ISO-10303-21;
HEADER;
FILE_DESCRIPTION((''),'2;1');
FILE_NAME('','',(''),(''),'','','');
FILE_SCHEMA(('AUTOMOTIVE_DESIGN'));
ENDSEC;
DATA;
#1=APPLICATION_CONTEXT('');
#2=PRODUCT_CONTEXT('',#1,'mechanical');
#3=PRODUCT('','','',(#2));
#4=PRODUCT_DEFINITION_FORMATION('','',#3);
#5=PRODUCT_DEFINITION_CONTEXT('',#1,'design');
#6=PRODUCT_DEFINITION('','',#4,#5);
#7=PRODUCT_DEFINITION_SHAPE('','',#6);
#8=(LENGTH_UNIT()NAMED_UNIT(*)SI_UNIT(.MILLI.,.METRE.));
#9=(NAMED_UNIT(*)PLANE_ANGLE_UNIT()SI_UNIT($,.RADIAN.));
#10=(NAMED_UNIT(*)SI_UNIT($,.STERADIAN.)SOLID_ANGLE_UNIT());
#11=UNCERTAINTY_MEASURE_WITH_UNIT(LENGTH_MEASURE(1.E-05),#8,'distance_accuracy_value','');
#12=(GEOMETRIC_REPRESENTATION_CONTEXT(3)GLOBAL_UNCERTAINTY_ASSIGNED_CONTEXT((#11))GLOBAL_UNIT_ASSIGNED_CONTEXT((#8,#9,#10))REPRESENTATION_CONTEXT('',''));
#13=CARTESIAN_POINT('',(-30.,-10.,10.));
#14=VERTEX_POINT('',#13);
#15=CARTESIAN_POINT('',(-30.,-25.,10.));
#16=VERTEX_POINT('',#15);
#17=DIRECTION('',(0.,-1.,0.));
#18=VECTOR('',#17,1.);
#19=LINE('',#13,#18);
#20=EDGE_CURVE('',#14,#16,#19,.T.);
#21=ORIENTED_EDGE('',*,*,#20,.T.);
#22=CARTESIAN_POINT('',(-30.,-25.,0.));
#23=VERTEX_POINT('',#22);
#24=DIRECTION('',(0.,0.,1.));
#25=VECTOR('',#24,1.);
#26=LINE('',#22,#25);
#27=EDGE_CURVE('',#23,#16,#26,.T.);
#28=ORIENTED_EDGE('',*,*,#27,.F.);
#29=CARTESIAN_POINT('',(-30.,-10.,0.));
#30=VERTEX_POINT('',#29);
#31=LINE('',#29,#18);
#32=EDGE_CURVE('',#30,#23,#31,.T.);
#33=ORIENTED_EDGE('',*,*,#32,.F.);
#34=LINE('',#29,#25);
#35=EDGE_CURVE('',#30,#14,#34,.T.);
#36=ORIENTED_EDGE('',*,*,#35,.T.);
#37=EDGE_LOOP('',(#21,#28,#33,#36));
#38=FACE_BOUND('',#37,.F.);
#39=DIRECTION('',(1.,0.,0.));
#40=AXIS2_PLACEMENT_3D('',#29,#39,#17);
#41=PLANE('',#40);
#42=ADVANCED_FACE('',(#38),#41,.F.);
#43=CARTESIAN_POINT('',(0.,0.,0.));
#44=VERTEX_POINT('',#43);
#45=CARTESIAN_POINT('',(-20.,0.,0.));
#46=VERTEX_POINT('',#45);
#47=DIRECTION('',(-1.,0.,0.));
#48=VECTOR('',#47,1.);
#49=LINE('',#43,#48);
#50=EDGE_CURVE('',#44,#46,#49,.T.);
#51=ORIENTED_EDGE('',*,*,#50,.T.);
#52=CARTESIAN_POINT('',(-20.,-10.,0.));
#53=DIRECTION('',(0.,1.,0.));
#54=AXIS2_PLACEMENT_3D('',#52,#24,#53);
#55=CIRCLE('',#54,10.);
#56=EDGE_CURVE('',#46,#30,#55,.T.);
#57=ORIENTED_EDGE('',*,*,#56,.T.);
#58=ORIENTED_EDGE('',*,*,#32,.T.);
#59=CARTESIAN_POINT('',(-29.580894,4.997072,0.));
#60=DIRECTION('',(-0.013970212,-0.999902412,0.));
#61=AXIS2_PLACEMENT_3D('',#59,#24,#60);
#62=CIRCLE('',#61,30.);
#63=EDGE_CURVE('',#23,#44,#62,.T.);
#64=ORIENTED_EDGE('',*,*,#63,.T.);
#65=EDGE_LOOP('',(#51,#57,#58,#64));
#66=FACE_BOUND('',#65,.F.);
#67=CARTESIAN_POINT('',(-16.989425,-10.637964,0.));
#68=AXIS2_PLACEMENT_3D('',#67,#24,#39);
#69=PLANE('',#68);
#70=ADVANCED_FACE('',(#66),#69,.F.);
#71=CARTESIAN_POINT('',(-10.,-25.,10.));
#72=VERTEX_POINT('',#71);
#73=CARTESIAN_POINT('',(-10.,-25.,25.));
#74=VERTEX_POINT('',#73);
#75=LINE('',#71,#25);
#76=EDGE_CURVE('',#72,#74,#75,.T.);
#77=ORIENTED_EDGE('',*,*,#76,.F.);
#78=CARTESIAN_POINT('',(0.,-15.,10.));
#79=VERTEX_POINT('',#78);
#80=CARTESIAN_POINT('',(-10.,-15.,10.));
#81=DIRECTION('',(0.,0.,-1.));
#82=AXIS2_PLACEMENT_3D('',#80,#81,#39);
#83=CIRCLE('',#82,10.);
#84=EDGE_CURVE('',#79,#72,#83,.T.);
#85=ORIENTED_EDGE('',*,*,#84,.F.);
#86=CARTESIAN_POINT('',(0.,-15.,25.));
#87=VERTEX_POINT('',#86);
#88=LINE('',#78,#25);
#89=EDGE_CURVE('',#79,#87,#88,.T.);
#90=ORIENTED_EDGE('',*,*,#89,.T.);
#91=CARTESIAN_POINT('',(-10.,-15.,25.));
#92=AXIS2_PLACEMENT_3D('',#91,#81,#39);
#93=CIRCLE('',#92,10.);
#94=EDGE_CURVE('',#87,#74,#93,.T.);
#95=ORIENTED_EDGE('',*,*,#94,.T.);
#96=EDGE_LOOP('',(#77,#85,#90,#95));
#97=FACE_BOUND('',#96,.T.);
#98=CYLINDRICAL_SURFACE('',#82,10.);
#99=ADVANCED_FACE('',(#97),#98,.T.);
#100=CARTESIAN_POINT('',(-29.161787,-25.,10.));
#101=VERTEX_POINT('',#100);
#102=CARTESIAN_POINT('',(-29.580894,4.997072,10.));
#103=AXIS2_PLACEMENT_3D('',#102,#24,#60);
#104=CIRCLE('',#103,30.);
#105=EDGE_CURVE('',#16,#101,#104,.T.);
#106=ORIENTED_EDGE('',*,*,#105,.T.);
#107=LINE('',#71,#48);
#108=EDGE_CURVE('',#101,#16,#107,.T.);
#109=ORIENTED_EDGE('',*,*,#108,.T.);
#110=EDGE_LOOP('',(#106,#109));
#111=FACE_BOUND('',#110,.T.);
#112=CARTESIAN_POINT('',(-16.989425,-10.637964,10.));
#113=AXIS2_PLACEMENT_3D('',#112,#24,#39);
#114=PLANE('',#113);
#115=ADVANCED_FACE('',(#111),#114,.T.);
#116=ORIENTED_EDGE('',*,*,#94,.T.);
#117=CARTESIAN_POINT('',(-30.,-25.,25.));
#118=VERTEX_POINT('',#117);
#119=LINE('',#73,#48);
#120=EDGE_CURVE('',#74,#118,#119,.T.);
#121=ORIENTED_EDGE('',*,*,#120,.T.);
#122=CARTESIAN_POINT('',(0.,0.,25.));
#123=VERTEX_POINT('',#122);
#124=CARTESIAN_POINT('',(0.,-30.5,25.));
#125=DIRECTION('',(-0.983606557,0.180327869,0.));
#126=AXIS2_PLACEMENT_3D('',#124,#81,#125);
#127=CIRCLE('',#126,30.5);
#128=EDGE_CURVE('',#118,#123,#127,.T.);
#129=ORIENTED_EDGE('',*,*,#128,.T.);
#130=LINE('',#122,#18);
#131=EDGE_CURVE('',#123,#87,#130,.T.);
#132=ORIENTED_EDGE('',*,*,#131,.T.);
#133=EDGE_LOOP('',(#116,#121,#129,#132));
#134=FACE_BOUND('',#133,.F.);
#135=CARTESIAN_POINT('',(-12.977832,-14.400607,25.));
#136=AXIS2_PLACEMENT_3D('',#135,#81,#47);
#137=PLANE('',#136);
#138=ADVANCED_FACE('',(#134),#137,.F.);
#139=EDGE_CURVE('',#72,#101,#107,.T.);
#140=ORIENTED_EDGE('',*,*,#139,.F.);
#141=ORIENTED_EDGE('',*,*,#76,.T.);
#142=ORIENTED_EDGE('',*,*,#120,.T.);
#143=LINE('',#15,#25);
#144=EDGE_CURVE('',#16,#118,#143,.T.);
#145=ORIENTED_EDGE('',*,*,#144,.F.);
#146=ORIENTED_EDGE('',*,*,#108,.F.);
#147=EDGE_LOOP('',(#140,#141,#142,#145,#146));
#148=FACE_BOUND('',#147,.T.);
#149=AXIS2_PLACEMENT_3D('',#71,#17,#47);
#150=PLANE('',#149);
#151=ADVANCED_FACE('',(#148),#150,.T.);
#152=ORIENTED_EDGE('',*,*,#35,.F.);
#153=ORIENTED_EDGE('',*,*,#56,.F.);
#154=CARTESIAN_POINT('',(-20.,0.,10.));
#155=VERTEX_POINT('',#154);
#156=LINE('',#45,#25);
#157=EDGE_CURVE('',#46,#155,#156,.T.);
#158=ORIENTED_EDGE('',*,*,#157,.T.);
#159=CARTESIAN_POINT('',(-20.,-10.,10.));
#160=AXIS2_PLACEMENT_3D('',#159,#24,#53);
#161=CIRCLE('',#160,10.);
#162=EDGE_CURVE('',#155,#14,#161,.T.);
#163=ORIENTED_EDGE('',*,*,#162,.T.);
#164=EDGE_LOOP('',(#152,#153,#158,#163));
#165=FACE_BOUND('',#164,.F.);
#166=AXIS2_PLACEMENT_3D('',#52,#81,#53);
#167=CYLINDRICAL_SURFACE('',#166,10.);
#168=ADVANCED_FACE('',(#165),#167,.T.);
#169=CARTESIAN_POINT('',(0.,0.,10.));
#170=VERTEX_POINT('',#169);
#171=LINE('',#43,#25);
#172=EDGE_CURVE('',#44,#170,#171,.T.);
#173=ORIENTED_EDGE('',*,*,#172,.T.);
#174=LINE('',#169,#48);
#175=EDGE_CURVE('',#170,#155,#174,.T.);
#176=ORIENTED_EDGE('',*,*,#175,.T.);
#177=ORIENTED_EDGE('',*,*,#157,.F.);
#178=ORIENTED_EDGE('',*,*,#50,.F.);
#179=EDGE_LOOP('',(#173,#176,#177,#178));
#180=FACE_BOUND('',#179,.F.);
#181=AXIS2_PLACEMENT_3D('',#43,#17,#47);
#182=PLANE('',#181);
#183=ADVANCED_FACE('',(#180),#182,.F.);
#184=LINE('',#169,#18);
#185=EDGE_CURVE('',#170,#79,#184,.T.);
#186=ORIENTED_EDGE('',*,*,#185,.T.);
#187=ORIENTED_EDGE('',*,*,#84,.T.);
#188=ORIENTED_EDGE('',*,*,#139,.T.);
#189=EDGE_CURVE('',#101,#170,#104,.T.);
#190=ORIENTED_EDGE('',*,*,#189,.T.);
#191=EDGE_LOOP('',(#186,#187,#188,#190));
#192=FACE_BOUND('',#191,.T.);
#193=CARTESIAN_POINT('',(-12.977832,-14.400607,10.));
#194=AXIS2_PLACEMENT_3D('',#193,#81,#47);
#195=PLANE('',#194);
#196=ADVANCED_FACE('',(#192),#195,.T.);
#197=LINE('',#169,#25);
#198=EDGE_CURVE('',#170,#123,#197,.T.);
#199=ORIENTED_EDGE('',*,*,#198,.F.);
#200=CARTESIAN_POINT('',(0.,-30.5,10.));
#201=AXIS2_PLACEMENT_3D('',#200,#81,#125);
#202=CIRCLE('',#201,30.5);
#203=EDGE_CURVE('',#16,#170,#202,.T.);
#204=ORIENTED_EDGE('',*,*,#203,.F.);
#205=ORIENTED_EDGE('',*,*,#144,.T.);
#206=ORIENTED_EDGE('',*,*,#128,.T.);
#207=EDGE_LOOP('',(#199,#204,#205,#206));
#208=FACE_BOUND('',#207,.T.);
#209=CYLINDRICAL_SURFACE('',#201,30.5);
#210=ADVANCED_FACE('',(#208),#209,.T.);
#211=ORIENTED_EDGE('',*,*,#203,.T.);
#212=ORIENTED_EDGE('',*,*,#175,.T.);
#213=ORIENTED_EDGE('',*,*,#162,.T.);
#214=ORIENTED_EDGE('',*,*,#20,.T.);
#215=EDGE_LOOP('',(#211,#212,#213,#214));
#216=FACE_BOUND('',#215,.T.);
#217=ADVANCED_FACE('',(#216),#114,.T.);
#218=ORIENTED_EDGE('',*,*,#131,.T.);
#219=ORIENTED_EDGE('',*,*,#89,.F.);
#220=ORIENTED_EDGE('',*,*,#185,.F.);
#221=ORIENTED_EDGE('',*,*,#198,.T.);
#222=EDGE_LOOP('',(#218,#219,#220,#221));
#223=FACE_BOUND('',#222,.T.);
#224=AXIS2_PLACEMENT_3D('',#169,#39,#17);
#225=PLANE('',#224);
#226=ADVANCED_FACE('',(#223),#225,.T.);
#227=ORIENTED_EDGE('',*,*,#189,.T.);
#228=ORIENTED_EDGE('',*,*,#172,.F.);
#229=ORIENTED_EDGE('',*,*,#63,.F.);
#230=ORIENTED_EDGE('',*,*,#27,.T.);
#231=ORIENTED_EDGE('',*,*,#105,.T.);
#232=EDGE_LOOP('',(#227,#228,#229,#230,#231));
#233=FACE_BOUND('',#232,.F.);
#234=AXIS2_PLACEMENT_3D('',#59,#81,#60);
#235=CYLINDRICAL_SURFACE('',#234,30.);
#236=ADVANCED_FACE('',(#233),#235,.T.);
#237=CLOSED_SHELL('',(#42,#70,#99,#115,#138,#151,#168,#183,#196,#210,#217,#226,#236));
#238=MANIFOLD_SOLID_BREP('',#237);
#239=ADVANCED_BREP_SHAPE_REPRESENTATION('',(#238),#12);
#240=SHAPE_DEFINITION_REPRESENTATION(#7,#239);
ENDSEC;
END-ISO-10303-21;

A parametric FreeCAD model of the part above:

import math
import FreeCAD as App
import Part
import Sketcher

V = App.Vector
Q = App.Units.Quantity

doc = App.newDocument("Part")
params = doc.addObject("Spreadsheet::Sheet", "Params")
for row, (alias, value) in enumerate([
    ("sketch1_radius", "10 mm"),
    ("sketch1_radius2", "30 mm"),
    ("sketch1_width", "20 mm"),
    ("sketch1_height", "15 mm"),
    ("pad1_length", "10 mm"),
    ("sketch2_radius", "10 mm"),
    ("sketch2_radius2", "30.5 mm"),
    ("sketch2_width", "20 mm"),
    ("pad2_length", "15 mm"),
], start=1):
    params.set(f"A{row}", alias)
    params.set(f"B{row}", "=" + value)
    params.setAlias(f"B{row}", alias)

body = doc.addObject("PartDesign::Body", "Body")

# Sketch on XY plane
sketch1 = body.newObject("Sketcher::SketchObject", "Sketch")
sketch1.AttachmentSupport = (doc.getObject("XY_Plane"), [""])
sketch1.MapMode = "FlatFace"
sketch1.addGeometry([
    Part.LineSegment(V(0, 0, 0), V(-20, 0, 0)),
    Part.ArcOfCircle(Part.Circle(V(-20, -10, 0), V(0, 0, 1), 10), math.radians(90), math.radians(180)),
    Part.LineSegment(V(-30, -10, 0), V(-30, -25, 0)),
    Part.ArcOfCircle(Part.Circle(V(-30, 5, 0), V(0, 0, 1), 30), math.radians(-91), math.radians(-10)),
], False)
sketch1.addConstraint([
    Sketcher.Constraint("Tangent", 0, 2, 1, 1),
    Sketcher.Constraint("Tangent", 1, 2, 2, 1),
    Sketcher.Constraint("Coincident", 2, 2, 3, 1),
    Sketcher.Constraint("Coincident", 3, 2, 0, 1),
    Sketcher.Constraint("Horizontal", 0),
    Sketcher.Constraint("Vertical", 2),
    Sketcher.Constraint("Coincident", 3, 2, -1, 1),
    Sketcher.Constraint("Radius", 1, Q("10 mm")),
    Sketcher.Constraint("Radius", 3, Q("30 mm")),
    Sketcher.Constraint("DistanceX", 0, 2, 0, 1, Q("20 mm")),
    Sketcher.Constraint("DistanceY", 2, 2, 2, 1, Q("15 mm")),
])
sketch1.setExpression("Constraints[7]", "Params.sketch1_radius")
sketch1.setExpression("Constraints[8]", "Params.sketch1_radius2")
sketch1.setExpression("Constraints[9]", "Params.sketch1_width")
sketch1.setExpression("Constraints[10]", "Params.sketch1_height")
pad1 = body.newObject("PartDesign::Pad", "Pad")
pad1.Profile = sketch1
pad1.setExpression("Length", "Params.pad1_length")

# Sketch on XY plane
sketch2 = body.newObject("Sketcher::SketchObject", "Sketch001")
sketch2.AttachmentSupport = (doc.getObject("XY_Plane"), [""])
sketch2.MapMode = "FlatFace"
sketch2.AttachmentOffset = App.Placement(V(0, 0, 10), App.Rotation())
sketch2.addGeometry([
    Part.LineSegment(V(0, -15, 0), V(0, 0, 0)),
    Part.ArcOfCircle(Part.Circle(V(0, -30, 0), V(0, 0, 1), 30), math.radians(90), math.radians(170)),
    Part.LineSegment(V(-30, -25, 0), V(-10, -25, 0)),
    Part.ArcOfCircle(Part.Circle(V(-10, -15, 0), V(0, 0, 1), 10), math.radians(-90), math.radians(0)),
], False)
sketch2.addConstraint([
    Sketcher.Constraint("Coincident", 0, 2, 1, 1),
    Sketcher.Constraint("Coincident", 1, 2, 2, 1),
    Sketcher.Constraint("Tangent", 2, 2, 3, 1),
    Sketcher.Constraint("Tangent", 3, 2, 0, 1),
    Sketcher.Constraint("Vertical", 0),
    Sketcher.Constraint("Horizontal", 2),
    Sketcher.Constraint("Coincident", 0, 2, -1, 1),
    Sketcher.Constraint("PointOnObject", 1, 3, -2),
    Sketcher.Constraint("Radius", 3, Q("10 mm")),
    Sketcher.Constraint("Radius", 1, Q("30.5 mm")),
    Sketcher.Constraint("DistanceX", 2, 1, 2, 2, Q("20 mm")),
])
sketch2.setExpression("Constraints[8]", "Params.sketch2_radius")
sketch2.setExpression("Constraints[9]", "Params.sketch2_radius2")
sketch2.setExpression("Constraints[10]", "Params.sketch2_width")
pad2 = body.newObject("PartDesign::Pad", "Pad001")
pad2.Profile = sketch2
pad2.setExpression("Length", "Params.pad2_length")

doc.recompute()
